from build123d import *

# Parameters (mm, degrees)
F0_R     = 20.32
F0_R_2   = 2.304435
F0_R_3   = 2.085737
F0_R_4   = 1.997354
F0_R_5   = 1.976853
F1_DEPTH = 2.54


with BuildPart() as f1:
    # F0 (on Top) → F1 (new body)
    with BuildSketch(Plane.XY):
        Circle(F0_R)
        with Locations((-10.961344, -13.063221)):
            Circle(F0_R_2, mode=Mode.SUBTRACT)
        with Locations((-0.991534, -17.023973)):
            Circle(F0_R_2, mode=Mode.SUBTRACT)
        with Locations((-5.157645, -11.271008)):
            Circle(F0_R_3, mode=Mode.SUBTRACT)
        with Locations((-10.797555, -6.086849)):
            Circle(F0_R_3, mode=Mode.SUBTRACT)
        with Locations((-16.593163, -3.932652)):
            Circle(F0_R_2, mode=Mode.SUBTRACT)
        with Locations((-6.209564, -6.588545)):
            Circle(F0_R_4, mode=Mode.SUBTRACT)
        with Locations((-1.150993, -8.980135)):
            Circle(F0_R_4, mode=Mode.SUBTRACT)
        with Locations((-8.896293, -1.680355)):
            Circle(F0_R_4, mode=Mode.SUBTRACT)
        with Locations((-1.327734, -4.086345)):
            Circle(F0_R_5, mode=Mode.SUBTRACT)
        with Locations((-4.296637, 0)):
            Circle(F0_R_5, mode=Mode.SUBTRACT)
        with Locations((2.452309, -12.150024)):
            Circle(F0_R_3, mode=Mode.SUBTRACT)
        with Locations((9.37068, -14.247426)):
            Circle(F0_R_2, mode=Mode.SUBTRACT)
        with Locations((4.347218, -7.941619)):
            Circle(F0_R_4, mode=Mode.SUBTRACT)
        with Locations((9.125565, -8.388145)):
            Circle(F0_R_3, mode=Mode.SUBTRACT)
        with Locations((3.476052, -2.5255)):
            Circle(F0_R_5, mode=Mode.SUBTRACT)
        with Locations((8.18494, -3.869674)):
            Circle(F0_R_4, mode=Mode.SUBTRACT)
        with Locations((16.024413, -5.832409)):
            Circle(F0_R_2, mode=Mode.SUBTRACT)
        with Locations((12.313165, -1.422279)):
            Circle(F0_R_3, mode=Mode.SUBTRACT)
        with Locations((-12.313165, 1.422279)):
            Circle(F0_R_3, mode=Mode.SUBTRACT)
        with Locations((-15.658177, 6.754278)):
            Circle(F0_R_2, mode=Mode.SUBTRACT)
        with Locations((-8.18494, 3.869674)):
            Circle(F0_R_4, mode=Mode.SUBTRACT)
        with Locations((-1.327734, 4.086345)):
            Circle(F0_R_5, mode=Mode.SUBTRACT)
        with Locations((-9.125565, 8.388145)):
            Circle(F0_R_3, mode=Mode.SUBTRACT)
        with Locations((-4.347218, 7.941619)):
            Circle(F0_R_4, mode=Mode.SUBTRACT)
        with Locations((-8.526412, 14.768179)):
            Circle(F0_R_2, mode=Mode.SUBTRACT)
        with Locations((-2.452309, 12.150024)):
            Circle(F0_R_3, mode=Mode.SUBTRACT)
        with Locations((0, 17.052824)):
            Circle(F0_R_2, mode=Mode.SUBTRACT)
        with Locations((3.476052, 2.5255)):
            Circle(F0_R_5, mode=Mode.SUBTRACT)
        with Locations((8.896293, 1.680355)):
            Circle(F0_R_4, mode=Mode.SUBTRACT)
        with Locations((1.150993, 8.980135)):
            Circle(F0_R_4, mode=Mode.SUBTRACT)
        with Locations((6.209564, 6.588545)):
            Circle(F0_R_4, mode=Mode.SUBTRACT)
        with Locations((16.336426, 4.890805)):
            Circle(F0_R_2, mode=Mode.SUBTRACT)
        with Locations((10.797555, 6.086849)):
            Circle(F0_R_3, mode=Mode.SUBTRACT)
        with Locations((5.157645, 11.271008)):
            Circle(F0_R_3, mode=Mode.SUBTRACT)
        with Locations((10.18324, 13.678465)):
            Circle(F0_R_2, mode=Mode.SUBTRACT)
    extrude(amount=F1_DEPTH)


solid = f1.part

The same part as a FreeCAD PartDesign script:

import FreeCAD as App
import Part
import Sketcher
Q = App.Units.Quantity

doc = App.newDocument("Part")
params = doc.addObject("Spreadsheet::Sheet", "Params")
for row, (alias, value) in enumerate([
    ("sketch1_diameter", "1.6 in"),
    ("pad1_length", "0.1 in"),
], start=1):
    params.set(f"A{row}", alias)
    params.set(f"B{row}", "=" + value)
    params.setAlias(f"B{row}", alias)

body = doc.addObject("PartDesign::Body", "Body")

sketch1 = body.newObject("Sketcher::SketchObject", "Sketch")
sketch1.AttachmentSupport = (doc.getObject("XY_Plane"), [""])
sketch1.MapMode = "FlatFace"
sketch1.addGeometry(Part.Circle(App.Vector(0, 0, 0), App.Vector(0, 0, 1), 20.3), False)
sketch1.addGeometry(Part.Circle(App.Vector(-11, -13.1, 0), App.Vector(0, 0, 1), 2.3), False)
sketch1.addGeometry(Part.Circle(App.Vector(-1, -17, 0), App.Vector(0, 0, 1), 2.3), False)
sketch1.addGeometry(Part.Circle(App.Vector(-5.2, -11.3, 0), App.Vector(0, 0, 1), 2.1), False)
sketch1.addGeometry(Part.Circle(App.Vector(-10.8, -6.1, 0), App.Vector(0, 0, 1), 2.1), False)
sketch1.addGeometry(Part.Circle(App.Vector(-16.6, -3.9, 0), App.Vector(0, 0, 1), 2.3), False)
sketch1.addGeometry(Part.Circle(App.Vector(-6.2, -6.6, 0), App.Vector(0, 0, 1), 2), False)
sketch1.addGeometry(Part.Circle(App.Vector(-1.2, -9, 0), App.Vector(0, 0, 1), 2), False)
sketch1.addGeometry(Part.Circle(App.Vector(-8.9, -1.7, 0), App.Vector(0, 0, 1), 2), False)
sketch1.addGeometry(Part.Circle(App.Vector(-1.3, -4.1, 0), App.Vector(0, 0, 1), 2), False)
sketch1.addGeometry(Part.Circle(App.Vector(-4.3, 0, 0), App.Vector(0, 0, 1), 2), False)
sketch1.addGeometry(Part.Circle(App.Vector(2.5, -12.2, 0), App.Vector(0, 0, 1), 2.1), False)
sketch1.addGeometry(Part.Circle(App.Vector(9.4, -14.2, 0), App.Vector(0, 0, 1), 2.3), False)
sketch1.addGeometry(Part.Circle(App.Vector(4.3, -7.9, 0), App.Vector(0, 0, 1), 2), False)
sketch1.addGeometry(Part.Circle(App.Vector(9.1, -8.4, 0), App.Vector(0, 0, 1), 2.1), False)
sketch1.addGeometry(Part.Circle(App.Vector(3.5, -2.5, 0), App.Vector(0, 0, 1), 2), False)
sketch1.addGeometry(Part.Circle(App.Vector(8.2, -3.9, 0), App.Vector(0, 0, 1), 2), False)
sketch1.addGeometry(Part.Circle(App.Vector(16, -5.8, 0), App.Vector(0, 0, 1), 2.3), False)
sketch1.addGeometry(Part.Circle(App.Vector(12.3, -1.4, 0), App.Vector(0, 0, 1), 2.1), False)
sketch1.addGeometry(Part.Circle(App.Vector(-12.3, 1.4, 0), App.Vector(0, 0, 1), 2.1), False)
sketch1.addGeometry(Part.Circle(App.Vector(-15.7, 6.8, 0), App.Vector(0, 0, 1), 2.3), False)
sketch1.addGeometry(Part.Circle(App.Vector(-8.2, 3.9, 0), App.Vector(0, 0, 1), 2), False)
sketch1.addGeometry(Part.Circle(App.Vector(-1.3, 4.1, 0), App.Vector(0, 0, 1), 2), False)
sketch1.addGeometry(Part.Circle(App.Vector(-9.1, 8.4, 0), App.Vector(0, 0, 1), 2.1), False)
sketch1.addGeometry(Part.Circle(App.Vector(-4.3, 7.9, 0), App.Vector(0, 0, 1), 2), False)
sketch1.addGeometry(Part.Circle(App.Vector(-2.5, 12.2, 0), App.Vector(0, 0, 1), 2.1), False)
sketch1.addGeometry(Part.Circle(App.Vector(-8.5, 14.8, 0), App.Vector(0, 0, 1), 2.3), False)
sketch1.addGeometry(Part.Circle(App.Vector(3.5, 2.5, 0), App.Vector(0, 0, 1), 2), False)
sketch1.addGeometry(Part.Circle(App.Vector(8.9, 1.7, 0), App.Vector(0, 0, 1), 2), False)
sketch1.addGeometry(Part.Circle(App.Vector(1.2, 9, 0), App.Vector(0, 0, 1), 2), False)
sketch1.addGeometry(Part.Circle(App.Vector(6.2, 6.6, 0), App.Vector(0, 0, 1), 2), False)
sketch1.addGeometry(Part.Circle(App.Vector(10.8, 6.1, 0), App.Vector(0, 0, 1), 2.1), False)
sketch1.addGeometry(Part.Circle(App.Vector(16.3, 4.9, 0), App.Vector(0, 0, 1), 2.3), False)
sketch1.addGeometry(Part.Circle(App.Vector(5.2, 11.3, 0), App.Vector(0, 0, 1), 2.1), False)
sketch1.addGeometry(Part.Circle(App.Vector(0, 17.1, 0), App.Vector(0, 0, 1), 2.3), False)
sketch1.addGeometry(Part.Circle(App.Vector(10.2, 13.7, 0), App.Vector(0, 0, 1), 2.3), False)
sketch1.addConstraint(Sketcher.Constraint("Coincident", 0, 3, -1, 1))
sketch1.addConstraint(Sketcher.Constraint("Equal", 1, 2))
sketch1.addConstraint(Sketcher.Constraint("Equal", 3, 4))
sketch1.addConstraint(Sketcher.Constraint("Equal", 2, 5))
sketch1.addConstraint(Sketcher.Constraint("Equal", 6, 7))
sketch1.addConstraint(Sketcher.Constraint("Equal", 7, 8))
sketch1.addConstraint(Sketcher.Constraint("Equal", 9, 10))
sketch1.addConstraint(Sketcher.Constraint("Equal", 4, 11))
sketch1.addConstraint(Sketcher.Constraint("Equal", 5, 12))
sketch1.addConstraint(Sketcher.Constraint("Equal", 8, 13))
sketch1.addConstraint(Sketcher.Constraint("Equal", 11, 14))
sketch1.addConstraint(Sketcher.Constraint("Equal", 10, 15))
sketch1.addConstraint(Sketcher.Constraint("Equal", 13, 16))
sketch1.addConstraint(Sketcher.Constraint("Equal", 12, 17))
sketch1.addConstraint(Sketcher.Constraint("Equal", 14, 18))
sketch1.addConstraint(Sketcher.Constraint("Equal", 18, 19))
sketch1.addConstraint(Sketcher.Constraint("Equal", 17, 20))
sketch1.addConstraint(Sketcher.Constraint("Equal", 16, 21))
sketch1.addConstraint(Sketcher.Constraint("Equal", 15, 22))
sketch1.addConstraint(Sketcher.Constraint("Equal", 19, 23))
sketch1.addConstraint(Sketcher.Constraint("Equal", 21, 24))
sketch1.addConstraint(Sketcher.Constraint("Equal", 23, 25))
sketch1.addConstraint(Sketcher.Constraint("Equal", 20, 26))
sketch1.addConstraint(Sketcher.Constraint("Equal", 22, 27))
sketch1.addConstraint(Sketcher.Constraint("Equal", 24, 28))
sketch1.addConstraint(Sketcher.Constraint("Equal", 28, 29))
sketch1.addConstraint(Sketcher.Constraint("Equal", 29, 30))
sketch1.addConstraint(Sketcher.Constraint("Equal", 25, 31))
sketch1.addConstraint(Sketcher.Constraint("Equal", 26, 32))
sketch1.addConstraint(Sketcher.Constraint("Equal", 31, 33))
sketch1.addConstraint(Sketcher.Constraint("Equal", 32, 34))
sketch1.addConstraint(Sketcher.Constraint("Equal", 34, 35))
sketch1.addConstraint(Sketcher.Constraint("Symmetric", 18, 3, 19, 3, -1, 1))
sketch1.addConstraint(Sketcher.Constraint("Symmetric", 16, 3, 21, 3, -1, 1))
sketch1.addConstraint(Sketcher.Constraint("Symmetric", 14, 3, 23, 3, -1, 1))
sketch1.addConstraint(Sketcher.Constraint("Symmetric", 13, 3, 24, 3, -1, 1))
sketch1.addConstraint(Sketcher.Constraint("Symmetric", 11, 3, 25, 3, -1, 1))
sketch1.addConstraint(Sketcher.Constraint("Symmetric", 8, 3, 28, 3, -1, 1))
sketch1.addConstraint(Sketcher.Constraint("Symmetric", 7, 3, 29, 3, -1, 1))
sketch1.addConstraint(Sketcher.Constraint("Symmetric", 6, 3, 30, 3, -1, 1))
sketch1.addConstraint(Sketcher.Constraint("Symmetric", 4, 3, 31, 3, -1, 1))
sketch1.addConstraint(Sketcher.Constraint("Symmetric", 3, 3, 33, 3, -1, 1))
sketch1.addConstraint(Sketcher.Constraint("Symmetric", 9, 3, 22, 3, -1))
sketch1.addConstraint(Sketcher.Constraint("Symmetric", 15, 3, 27, 3, -1))
sketch1.addConstraint(Sketcher.Constraint("PointOnObject", 10, 3, -1))
sketch1.addConstraint(Sketcher.Constraint("PointOnObject", 34, 3, -2))
sketch1.addConstraint(Sketcher.Constraint("Diameter", 0, Q("1.6 in")))
sketch1.addConstraint(Sketcher.Constraint("Diameter", 1, 4.60887))
sketch1.addConstraint(Sketcher.Constraint("Diameter", 6, 3.994708))
sketch1.addConstraint(Sketcher.Constraint("Diameter", 3, 4.171474))
sketch1.addConstraint(Sketcher.Constraint("Diameter", 9, 3.953706))
sketch1.addConstraint(Sketcher.Constraint("DistanceY", 1, 3, -1, 1, Q("0.5143 in")))
sketch1.addConstraint(Sketcher.Constraint("DistanceY", 12, 3, 17, 3, Q("0.3312999 in")))
sketch1.addConstraint(Sketcher.Constraint("DistanceY", 15, 3, -1, 1, 2.5255))
sketch1.addConstraint(Sketcher.Constraint("DistanceX", 1, 3, 3, 3, 5.803699))
sketch1.addConstraint(Sketcher.Constraint("DistanceX", 5, 3, 6, 3, 10.383599))
sketch1.addConstraint(Sketcher.Constraint("DistanceY", 6, 3, 9, 3, 2.5022))
sketch1.addConstraint(Sketcher.Constraint("DistanceX", 9, 3, 14, 3, 10.453299))
sketch1.addConstraint(Sketcher.Constraint("DistanceY", 14, 3, 9, 3, 4.3018))
sketch1.addConstraint(Sketcher.Constraint("DistanceX", 14, 3, 18, 3, 3.1876))
sketch1.addConstraint(Sketcher.Constraint("DistanceX", 5, 3, 19, 3, 4.279998))
sketch1.addConstraint(Sketcher.Constraint("DistanceY", 19, 3, 20, 3, 5.331999))
sketch1.addConstraint(Sketcher.Constraint("DistanceY", 20, 3, 26, 3, 8.013901))
sketch1.addConstraint(Sketcher.Constraint("DistanceY", 25, 3, 34, 3, 4.9028))
sketch1.addConstraint(Sketcher.Constraint("DistanceY", 4, 3, -1, 1, 6.086849))
sketch1.addConstraint(Sketcher.Constraint("DistanceY", 5, 3, -1, 1, 3.932652))
sketch1.addConstraint(Sketcher.Constraint("DistanceX", -1, 1, 11, 3, 2.452309))
sketch1.addConstraint(Sketcher.Constraint("DistanceX", -1, 1, 12, 3, 9.37068))
sketch1.addConstraint(Sketcher.Constraint("DistanceY", 13, 3, -1, 1, 7.941619))
sketch1.addConstraint(Sketcher.Constraint("DistanceX", -1, 1, 16, 3, 8.18494))
sketch1.addConstraint(Sketcher.Constraint("DistanceY", 17, 3, -1, 1, 5.832409))
sketch1.addConstraint(Sketcher.Constraint("DistanceY", 18, 3, -1, 1, 1.422279))
sketch1.addConstraint(Sketcher.Constraint("DistanceX", -1, 1, 35, 3, 10.18324))
sketch1.addConstraint(Sketcher.Constraint("DistanceX", 1, 3, 2, 3, 9.96981))
sketch1.addConstraint(Sketcher.Constraint("DistanceX", 1, 3, 4, 3, 0.163789))
sketch1.addConstraint(Sketcher.Constraint("DistanceY", 3, 3, 4, 3, 5.184159))
sketch1.addConstraint(Sketcher.Constraint("DistanceX", 5, 3, 4, 3, 5.795608))
sketch1.addConstraint(Sketcher.Constraint("DistanceY", 2, 3, 5, 3, 13.091321))
sketch1.addConstraint(Sketcher.Constraint("DistanceX", 6, 3, 7, 3, 5.058571))
sketch1.addConstraint(Sketcher.Constraint("DistanceY", 7, 3, 6, 3, 2.39159))
sketch1.addConstraint(Sketcher.Constraint("DistanceY", 2, 3, 7, 3, 8.043838))
sketch1.addConstraint(Sketcher.Constraint("DistanceX", 4, 3, 8, 3, 1.901262))
sketch1.addConstraint(Sketcher.Constraint("DistanceY", 6, 3, 8, 3, 4.90819))
sketch1.addConstraint(Sketcher.Constraint("DistanceX", 9, 3, 7, 3, 0.176741))
sketch1.addConstraint(Sketcher.Constraint("DistanceY", 11, 3, 7, 3, 3.169889))
sketch1.addConstraint(Sketcher.Constraint("DistanceX", 11, 3, 13, 3, 1.894909))
sketch1.addConstraint(Sketcher.Constraint("DistanceY", 14, 3, 16, 3, 4.518471))
sketch1.addConstraint(Sketcher.Constraint("DistanceX", 15, 3, 17, 3, 12.548361))
sketch1.addConstraint(Sketcher.Constraint("DistanceX", 19, 3, 10, 3, 8.016528))
sketch1.addConstraint(Sketcher.Constraint("DistanceX", 20, 3, 10, 3, 11.36154))
sketch1.addConstraint(Sketcher.Constraint("DistanceX", 10, 3, 27, 3, 7.772689))
sketch1.addConstraint(Sketcher.Constraint("DistanceX", 31, 3, 32, 3, 5.538871))
sketch1.addConstraint(Sketcher.Constraint("DistanceY", 28, 3, 32, 3, 3.21045))
sketch1.addConstraint(Sketcher.Constraint("DistanceY", 30, 3, 35, 3, 7.08992))
sketch1.addConstraint(Sketcher.Constraint("DistanceX", 26, 3, -1, 1, 8.526412))
sketch1.setExpression("Constraints[46]", "Params.sketch1_diameter")
pad1 = body.newObject("PartDesign::Pad", "Pad")
pad1.Profile = sketch1
pad1.setExpression("Length", "Params.pad1_length")

doc.recompute()
